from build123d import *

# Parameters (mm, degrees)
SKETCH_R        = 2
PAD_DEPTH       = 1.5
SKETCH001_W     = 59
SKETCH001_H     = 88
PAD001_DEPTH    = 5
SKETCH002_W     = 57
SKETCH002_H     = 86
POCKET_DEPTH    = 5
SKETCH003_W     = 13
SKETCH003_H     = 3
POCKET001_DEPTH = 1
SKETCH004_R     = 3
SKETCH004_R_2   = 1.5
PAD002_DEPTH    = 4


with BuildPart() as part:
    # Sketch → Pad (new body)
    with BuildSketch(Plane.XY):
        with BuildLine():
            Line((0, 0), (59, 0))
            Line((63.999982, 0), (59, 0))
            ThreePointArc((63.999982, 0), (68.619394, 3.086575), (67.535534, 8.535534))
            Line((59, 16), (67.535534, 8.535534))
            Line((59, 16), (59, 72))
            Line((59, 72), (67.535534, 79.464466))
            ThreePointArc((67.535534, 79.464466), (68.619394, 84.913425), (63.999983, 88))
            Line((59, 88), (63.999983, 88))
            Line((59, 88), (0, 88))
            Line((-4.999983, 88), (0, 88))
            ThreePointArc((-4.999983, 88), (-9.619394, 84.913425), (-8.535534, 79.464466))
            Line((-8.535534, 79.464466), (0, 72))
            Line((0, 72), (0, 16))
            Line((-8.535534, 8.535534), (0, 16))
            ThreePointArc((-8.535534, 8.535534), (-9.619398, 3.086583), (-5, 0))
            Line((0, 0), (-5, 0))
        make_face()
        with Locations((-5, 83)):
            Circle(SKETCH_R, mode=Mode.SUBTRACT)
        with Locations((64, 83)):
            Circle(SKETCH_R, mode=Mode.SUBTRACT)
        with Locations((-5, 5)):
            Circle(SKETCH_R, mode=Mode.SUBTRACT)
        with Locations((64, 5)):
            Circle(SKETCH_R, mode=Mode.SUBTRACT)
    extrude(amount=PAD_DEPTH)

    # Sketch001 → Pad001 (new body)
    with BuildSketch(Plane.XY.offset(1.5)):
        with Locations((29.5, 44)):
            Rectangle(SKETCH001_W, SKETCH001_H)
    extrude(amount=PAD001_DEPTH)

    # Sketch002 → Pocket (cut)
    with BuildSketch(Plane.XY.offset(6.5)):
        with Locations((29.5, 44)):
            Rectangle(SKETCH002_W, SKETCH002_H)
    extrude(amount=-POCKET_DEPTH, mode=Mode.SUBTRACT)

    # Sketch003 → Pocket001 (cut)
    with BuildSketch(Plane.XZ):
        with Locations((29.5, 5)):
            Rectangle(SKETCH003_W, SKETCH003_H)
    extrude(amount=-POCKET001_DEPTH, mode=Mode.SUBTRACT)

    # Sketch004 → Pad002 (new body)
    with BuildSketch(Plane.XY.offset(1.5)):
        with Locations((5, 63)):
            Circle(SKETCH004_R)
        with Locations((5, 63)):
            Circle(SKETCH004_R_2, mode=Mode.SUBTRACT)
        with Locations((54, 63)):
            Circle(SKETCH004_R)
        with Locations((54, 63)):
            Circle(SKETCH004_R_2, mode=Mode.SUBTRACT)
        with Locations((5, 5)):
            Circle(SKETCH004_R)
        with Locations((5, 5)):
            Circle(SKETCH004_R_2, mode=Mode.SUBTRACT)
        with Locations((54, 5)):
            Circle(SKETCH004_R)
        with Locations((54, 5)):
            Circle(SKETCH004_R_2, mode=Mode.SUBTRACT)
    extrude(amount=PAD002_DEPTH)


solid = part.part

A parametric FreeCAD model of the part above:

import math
import FreeCAD as App
import Part
import Sketcher

V = App.Vector

doc = App.newDocument("Part")
body = doc.addObject("PartDesign::Body", "Body")

sketch1 = body.newObject("Sketcher::SketchObject", "Sketch")
sketch1.AttachmentSupport = (doc.getObject("XY_Plane"), [""])
sketch1.MapMode = "FlatFace"
sketch1.addGeometry([
    Part.ArcOfCircle(Part.Circle(V(64, 5, 0), V(0, 0, 1), 5), math.radians(-90), math.radians(45)),
    Part.LineSegment(V(67.5, 8.5, 0), V(59, 16, 0)),
    Part.LineSegment(V(59, 16, 0), V(59, 72, 0)),
    Part.LineSegment(V(59, 72, 0), V(67.5, 79.5, 0)),
    Part.ArcOfCircle(Part.Circle(V(64, 83, 0), V(0, 0, 1), 5), math.radians(-45), math.radians(90)),
    Part.LineSegment(V(64, 88, 0), V(-5, 88, 0)),
    Part.ArcOfCircle(Part.Circle(V(-5, 83, 0), V(0, 0, 1), 5), math.radians(90), math.radians(225)),
    Part.LineSegment(V(-8.5, 79.5, 0), V(0, 72, 0)),
    Part.LineSegment(V(0, 72, 0), V(0, 16, 0)),
    Part.LineSegment(V(0, 16, 0), V(-8.5, 8.5, 0)),
    Part.ArcOfCircle(Part.Circle(V(-5, 5, 0), V(0, 0, 1), 5), math.radians(135), math.radians(270)),
    Part.LineSegment(V(-5, 0, 0), V(64, 0, 0)),
    Part.Circle(V(-5, 5, 0), V(0, 0, 1), 2),
    Part.Circle(V(64, 5, 0), V(0, 0, 1), 2),
    Part.Circle(V(-5, 83, 0), V(0, 0, 1), 2),
    Part.Circle(V(64, 83, 0), V(0, 0, 1), 2),
], False)
sketch1.addConstraint([
    Sketcher.Constraint("Coincident", 0, 2, 1, 1),
    Sketcher.Constraint("Coincident", 1, 2, 2, 1),
    Sketcher.Constraint("Coincident", 2, 2, 3, 1),
    Sketcher.Constraint("Coincident", 3, 2, 4, 1),
    Sketcher.Constraint("Coincident", 4, 2, 5, 1),
    Sketcher.Constraint("Coincident", 5, 2, 6, 1),
    Sketcher.Constraint("Coincident", 6, 2, 7, 1),
    Sketcher.Constraint("Coincident", 7, 2, 8, 1),
    Sketcher.Constraint("Coincident", 8, 2, 9, 1),
    Sketcher.Constraint("Coincident", 9, 2, 10, 1),
    Sketcher.Constraint("Tangent", 10, 2, 11, 1),
    Sketcher.Constraint("Coincident", 11, 2, 0, 1),
    Sketcher.Constraint("Vertical", 2),
    Sketcher.Constraint("Horizontal", 5),
    Sketcher.Constraint("Vertical", 8),
    Sketcher.Constraint("Horizontal", 11),
    Sketcher.Constraint("Coincident", 12, 3, 10, 3),
    Sketcher.Constraint("Coincident", 13, 3, 0, 3),
    Sketcher.Constraint("Coincident", 14, 3, 6, 3),
    Sketcher.Constraint("Coincident", 15, 3, 4, 3),
    Sketcher.Constraint("Equal", 0, 4),
    Sketcher.Constraint("Equal", 4, 6),
    Sketcher.Constraint("Equal", 6, 10),
    Sketcher.Constraint("Equal", 12, 13),
    Sketcher.Constraint("Equal", 13, 14),
    Sketcher.Constraint("Equal", 14, 15),
    Sketcher.Constraint("PointOnObject", 7, 2, -2),
    Sketcher.Constraint("PointOnObject", 10, 2, -1),
    Sketcher.Constraint("Parallel", 1, 7),
    Sketcher.Constraint("Parallel", 3, 9),
    Sketcher.Constraint("Horizontal", 3, 2, 6, 2),
    Sketcher.Constraint("Horizontal", 2, 2, 7, 2),
    Sketcher.Constraint("Horizontal", 1, 2, 8, 2),
    Sketcher.Constraint("Horizontal", 0, 2, 9, 2),
    Sketcher.Constraint("Vertical", 0, 3, 4, 3),
    Sketcher.Constraint("Vertical", 6, 3, 10, 3),
    Sketcher.Constraint("Vertical", 0, 2, 3, 2),
    Sketcher.Constraint("Vertical", 4, 2, 11, 2),
    Sketcher.Constraint("Diameter", 12, 4.0),
    Sketcher.Constraint("Radius", 0, 5.0),
    Sketcher.Constraint("DistanceY", 2, 1, 2, 2, 56.0),
    Sketcher.Constraint("DistanceX", -1, 1, 0, 3, 63.999999),
    Sketcher.Constraint("DistanceY", -1, 1, 4, 3, 83.0),
    Sketcher.Constraint("DistanceX", 6, 3, -1, 1, 4.999999),
    Sketcher.Constraint("Distance", 1, 11.33903),
    Sketcher.Constraint("DistanceX", 5, 2, 5, 1, 68.999966),
    Sketcher.Constraint("DistanceX", 11, 1, 11, 2, 68.999982),
])
pad1 = body.newObject("PartDesign::Pad", "Pad")
pad1.Profile = sketch1
pad1.Length = 1.5

sketch2 = body.newObject("Sketcher::SketchObject", "Sketch001")
sketch2.AttachmentSupport = (doc.getObject("XY_Plane"), [""])
sketch2.MapMode = "FlatFace"
sketch2.AttachmentOffset = App.Placement(V(0, 0, 1.5), App.Rotation())
sketch2.addGeometry([
    Part.LineSegment(V(0, 88, 0), V(0, 0, 0)),
    Part.LineSegment(V(0, 0, 0), V(59, 0, 0)),
    Part.LineSegment(V(59, 0, 0), V(59, 88, 0)),
    Part.LineSegment(V(59, 88, 0), V(0, 88, 0)),
], False)
sketch2.addConstraint([
    Sketcher.Constraint("Coincident", 0, 2, 1, 1),
    Sketcher.Constraint("Coincident", 1, 2, 2, 1),
    Sketcher.Constraint("Coincident", 2, 2, 3, 1),
    Sketcher.Constraint("Coincident", 3, 2, 0, 1),
    Sketcher.Constraint("Vertical", 0),
    Sketcher.Constraint("Horizontal", 1),
    Sketcher.Constraint("Vertical", 2),
    Sketcher.Constraint("Horizontal", 3),
    Sketcher.Constraint("Coincident", 0, 2, -1, 1),
    Sketcher.Constraint("DistanceX", 1, 1, 1, 2, 59.0),
    Sketcher.Constraint("DistanceY", 0, 2, 0, 1, 88.0),
])
pad2 = body.newObject("PartDesign::Pad", "Pad001")
pad2.Profile = sketch2
pad2.Length = 5

sketch3 = body.newObject("Sketcher::SketchObject", "Sketch002")
sketch3.AttachmentSupport = (doc.getObject("XY_Plane"), [""])
sketch3.MapMode = "FlatFace"
sketch3.AttachmentOffset = App.Placement(V(0, 0, 6.5), App.Rotation())
sketch3.addGeometry([
    Part.LineSegment(V(1, 87, 0), V(1, 1, 0)),
    Part.LineSegment(V(1, 1, 0), V(58, 1, 0)),
    Part.LineSegment(V(58, 1, 0), V(58, 87, 0)),
    Part.LineSegment(V(58, 87, 0), V(1, 87, 0)),
], False)
sketch3.addConstraint([
    Sketcher.Constraint("Coincident", 0, 2, 1, 1),
    Sketcher.Constraint("Coincident", 1, 2, 2, 1),
    Sketcher.Constraint("Coincident", 2, 2, 3, 1),
    Sketcher.Constraint("Coincident", 3, 2, 0, 1),
    Sketcher.Constraint("Vertical", 0),
    Sketcher.Constraint("Horizontal", 1),
    Sketcher.Constraint("Vertical", 2),
    Sketcher.Constraint("Horizontal", 3),
    Sketcher.Constraint("DistanceX", 1, 1, 1, 2, 57.0),
    Sketcher.Constraint("DistanceY", 0, 2, 0, 1, 86.0),
    Sketcher.Constraint("DistanceX", -1, 1, 0, 2, 1.0),
    Sketcher.Constraint("DistanceY", -1, 1, 0, 2, 1.0),
])
pocket1 = body.newObject("PartDesign::Pocket", "Pocket")
pocket1.Profile = sketch3
pocket1.Length = 5

sketch4 = body.newObject("Sketcher::SketchObject", "Sketch003")
sketch4.AttachmentSupport = (doc.getObject("XZ_Plane"), [""])
sketch4.MapMode = "FlatFace"
sketch4.addGeometry([
    Part.LineSegment(V(23, 6.5, 0), V(23, 3.5, 0)),
    Part.LineSegment(V(23, 3.5, 0), V(36, 3.5, 0)),
    Part.LineSegment(V(36, 3.5, 0), V(36, 6.5, 0)),
    Part.LineSegment(V(36, 6.5, 0), V(23, 6.5, 0)),
], False)
sketch4.addConstraint([
    Sketcher.Constraint("Coincident", 0, 2, 1, 1),
    Sketcher.Constraint("Coincident", 1, 2, 2, 1),
    Sketcher.Constraint("Coincident", 2, 2, 3, 1),
    Sketcher.Constraint("Coincident", 3, 2, 0, 1),
    Sketcher.Constraint("Vertical", 0),
    Sketcher.Constraint("Horizontal", 1),
    Sketcher.Constraint("Vertical", 2),
    Sketcher.Constraint("Horizontal", 3),
    Sketcher.Constraint("DistanceX", 1, 1, 1, 2, 13.0),
    Sketcher.Constraint("DistanceY", 0, 2, 0, 1, 3.0),
    Sketcher.Constraint("DistanceX", -1, 1, 0, 2, 23.0),
    Sketcher.Constraint("DistanceY", -1, 1, 0, 2, 3.5),
])
pocket2 = body.newObject("PartDesign::Pocket", "Pocket001")
pocket2.Profile = sketch4
pocket2.Length = 1

sketch5 = body.newObject("Sketcher::SketchObject", "Sketch004")
sketch5.AttachmentSupport = (doc.getObject("XY_Plane"), [""])
sketch5.MapMode = "FlatFace"
sketch5.AttachmentOffset = App.Placement(V(0, 0, 1.5), App.Rotation())
sketch5.addGeometry([
    Part.Circle(V(5, 63, 0), V(0, 0, 1), 3),
    Part.Circle(V(5, 63, 0), V(0, 0, 1), 1.5),
    Part.Circle(V(54, 63, 0), V(0, 0, 1), 3),
    Part.Circle(V(54, 63, 0), V(0, 0, 1), 1.5),
    Part.Circle(V(5, 5, 0), V(0, 0, 1), 3),
    Part.Circle(V(5, 5, 0), V(0, 0, 1), 1.5),
    Part.Circle(V(54, 5, 0), V(0, 0, 1), 3),
    Part.Circle(V(54, 5, 0), V(0, 0, 1), 1.5),
], False)
sketch5.addConstraint([
    Sketcher.Constraint("Coincident", 1, 3, 0, 3),
    Sketcher.Constraint("Coincident", 3, 3, 2, 3),
    Sketcher.Constraint("Coincident", 5, 3, 4, 3),
    Sketcher.Constraint("Coincident", 7, 3, 6, 3),
    Sketcher.Constraint("Equal", 0, 2),
    Sketcher.Constraint("Equal", 1, 3),
    Sketcher.Constraint("Equal", 2, 4),
    Sketcher.Constraint("Equal", 3, 5),
    Sketcher.Constraint("Equal", 4, 6),
    Sketcher.Constraint("Equal", 5, 7),
    Sketcher.Constraint("Horizontal", 1, 3, 2, 3),
    Sketcher.Constraint("Horizontal", 5, 3, 6, 3),
    Sketcher.Constraint("Vertical", 1, 3, 4, 3),
    Sketcher.Constraint("Vertical", 3, 3, 6, 3),
    Sketcher.Constraint("Diameter", 0, 6.0),
    Sketcher.Constraint("Diameter", 1, 3.0),
    Sketcher.Constraint("DistanceX", -1, 1, 0, 3, 5.0),
    Sketcher.Constraint("DistanceY", -1, 1, 0, 3, 63.0),
    Sketcher.Constraint("DistanceX", -1, 1, 2, 3, 54.0),
    Sketcher.Constraint("DistanceY", -1, 1, 4, 3, 5.0),
])
pad3 = body.newObject("PartDesign::Pad", "Pad002")
pad3.Profile = sketch5
pad3.Length = 4

doc.recompute()
